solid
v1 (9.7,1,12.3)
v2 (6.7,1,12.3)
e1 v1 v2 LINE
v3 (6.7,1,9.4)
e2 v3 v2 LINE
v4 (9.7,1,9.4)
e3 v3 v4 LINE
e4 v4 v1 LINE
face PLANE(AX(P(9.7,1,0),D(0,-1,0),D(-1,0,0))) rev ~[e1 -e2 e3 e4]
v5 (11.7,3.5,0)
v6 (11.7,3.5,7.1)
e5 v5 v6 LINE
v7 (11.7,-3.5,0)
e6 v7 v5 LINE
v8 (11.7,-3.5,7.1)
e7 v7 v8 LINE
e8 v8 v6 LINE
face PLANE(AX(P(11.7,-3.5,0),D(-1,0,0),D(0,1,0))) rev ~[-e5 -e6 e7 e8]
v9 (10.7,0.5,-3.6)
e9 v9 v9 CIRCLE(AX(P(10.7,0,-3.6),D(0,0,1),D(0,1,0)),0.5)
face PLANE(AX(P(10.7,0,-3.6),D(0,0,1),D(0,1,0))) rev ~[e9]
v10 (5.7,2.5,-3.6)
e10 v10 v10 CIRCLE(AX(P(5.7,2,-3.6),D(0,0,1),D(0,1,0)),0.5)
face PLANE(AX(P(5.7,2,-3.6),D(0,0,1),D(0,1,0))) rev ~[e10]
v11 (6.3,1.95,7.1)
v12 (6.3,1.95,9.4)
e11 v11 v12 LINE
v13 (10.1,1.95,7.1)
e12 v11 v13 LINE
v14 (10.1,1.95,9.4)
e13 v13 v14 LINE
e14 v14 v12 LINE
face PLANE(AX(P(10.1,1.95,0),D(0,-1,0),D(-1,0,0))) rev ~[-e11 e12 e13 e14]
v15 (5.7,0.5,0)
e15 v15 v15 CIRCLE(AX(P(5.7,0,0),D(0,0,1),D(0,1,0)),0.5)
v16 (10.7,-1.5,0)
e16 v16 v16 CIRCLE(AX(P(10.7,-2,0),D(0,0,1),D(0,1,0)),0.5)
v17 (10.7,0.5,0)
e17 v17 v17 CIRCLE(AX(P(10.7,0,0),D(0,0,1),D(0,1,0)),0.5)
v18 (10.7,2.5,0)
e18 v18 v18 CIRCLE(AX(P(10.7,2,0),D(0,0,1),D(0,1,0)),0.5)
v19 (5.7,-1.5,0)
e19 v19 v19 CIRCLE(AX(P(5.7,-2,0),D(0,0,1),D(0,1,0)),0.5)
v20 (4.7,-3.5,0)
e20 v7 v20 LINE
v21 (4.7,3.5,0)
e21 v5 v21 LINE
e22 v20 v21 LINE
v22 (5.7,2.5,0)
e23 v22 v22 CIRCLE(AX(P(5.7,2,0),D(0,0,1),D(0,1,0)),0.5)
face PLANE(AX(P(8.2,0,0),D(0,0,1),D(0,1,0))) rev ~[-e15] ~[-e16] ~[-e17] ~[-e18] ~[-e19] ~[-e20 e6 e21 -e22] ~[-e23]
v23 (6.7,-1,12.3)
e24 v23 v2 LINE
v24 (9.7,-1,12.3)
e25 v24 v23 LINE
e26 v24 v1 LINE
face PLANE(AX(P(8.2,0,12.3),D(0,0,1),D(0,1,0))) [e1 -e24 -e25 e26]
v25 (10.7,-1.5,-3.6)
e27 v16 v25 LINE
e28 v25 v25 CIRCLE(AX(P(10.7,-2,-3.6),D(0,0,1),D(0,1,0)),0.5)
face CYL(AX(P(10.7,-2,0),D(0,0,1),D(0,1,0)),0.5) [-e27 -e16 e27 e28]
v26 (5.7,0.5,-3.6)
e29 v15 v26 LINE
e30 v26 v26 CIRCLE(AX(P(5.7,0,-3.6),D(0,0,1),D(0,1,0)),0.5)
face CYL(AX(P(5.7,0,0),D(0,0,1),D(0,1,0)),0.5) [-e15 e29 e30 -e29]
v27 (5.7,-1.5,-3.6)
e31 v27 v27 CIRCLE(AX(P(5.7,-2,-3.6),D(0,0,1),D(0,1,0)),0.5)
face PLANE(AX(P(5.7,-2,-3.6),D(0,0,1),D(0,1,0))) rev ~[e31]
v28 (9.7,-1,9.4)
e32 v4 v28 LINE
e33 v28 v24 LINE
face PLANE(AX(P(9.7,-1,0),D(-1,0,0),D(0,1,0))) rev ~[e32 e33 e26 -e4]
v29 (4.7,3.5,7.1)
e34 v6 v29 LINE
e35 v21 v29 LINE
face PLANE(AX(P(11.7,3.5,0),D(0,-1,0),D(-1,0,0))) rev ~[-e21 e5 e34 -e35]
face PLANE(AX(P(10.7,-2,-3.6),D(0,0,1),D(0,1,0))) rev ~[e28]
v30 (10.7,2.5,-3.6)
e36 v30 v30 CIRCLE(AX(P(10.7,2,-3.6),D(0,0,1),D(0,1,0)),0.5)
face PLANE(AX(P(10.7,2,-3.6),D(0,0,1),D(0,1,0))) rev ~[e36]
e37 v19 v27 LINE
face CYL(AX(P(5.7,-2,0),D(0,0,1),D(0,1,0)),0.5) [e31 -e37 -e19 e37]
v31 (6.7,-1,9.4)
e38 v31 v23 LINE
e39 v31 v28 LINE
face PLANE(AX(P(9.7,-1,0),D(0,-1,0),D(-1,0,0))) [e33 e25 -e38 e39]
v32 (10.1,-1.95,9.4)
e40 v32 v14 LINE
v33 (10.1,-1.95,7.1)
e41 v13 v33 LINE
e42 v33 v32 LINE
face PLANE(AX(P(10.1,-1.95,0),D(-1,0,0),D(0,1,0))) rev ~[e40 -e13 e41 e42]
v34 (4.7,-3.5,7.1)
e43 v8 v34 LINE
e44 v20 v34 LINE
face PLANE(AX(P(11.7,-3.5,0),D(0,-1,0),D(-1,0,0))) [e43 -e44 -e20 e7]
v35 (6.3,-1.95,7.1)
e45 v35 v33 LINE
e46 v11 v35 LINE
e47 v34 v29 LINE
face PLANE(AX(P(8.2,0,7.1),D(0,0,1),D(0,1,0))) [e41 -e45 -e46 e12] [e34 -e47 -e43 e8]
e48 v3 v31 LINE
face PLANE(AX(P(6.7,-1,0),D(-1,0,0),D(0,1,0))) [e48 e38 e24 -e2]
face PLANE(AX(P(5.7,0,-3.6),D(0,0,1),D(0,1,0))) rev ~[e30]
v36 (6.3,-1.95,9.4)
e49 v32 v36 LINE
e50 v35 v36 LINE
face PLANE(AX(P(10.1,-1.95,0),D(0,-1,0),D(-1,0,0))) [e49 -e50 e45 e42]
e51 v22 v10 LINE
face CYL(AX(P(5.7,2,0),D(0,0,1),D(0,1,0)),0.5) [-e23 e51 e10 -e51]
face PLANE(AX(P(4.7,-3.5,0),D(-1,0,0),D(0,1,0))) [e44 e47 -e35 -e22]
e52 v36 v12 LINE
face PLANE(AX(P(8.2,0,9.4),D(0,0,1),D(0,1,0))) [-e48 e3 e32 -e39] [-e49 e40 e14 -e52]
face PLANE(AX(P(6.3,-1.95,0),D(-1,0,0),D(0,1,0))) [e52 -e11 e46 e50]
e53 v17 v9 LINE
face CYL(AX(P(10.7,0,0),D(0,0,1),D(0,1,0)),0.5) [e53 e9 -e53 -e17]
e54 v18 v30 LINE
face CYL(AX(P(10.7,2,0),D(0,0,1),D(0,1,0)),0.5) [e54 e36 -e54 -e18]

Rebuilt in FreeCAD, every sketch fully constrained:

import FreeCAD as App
import Part
import Sketcher
Q = App.Units.Quantity


def add_polygon(sketch, points):
    """Adds a closed chain of lines whose ends are joined by coincident constraints."""
    first, n = sketch.GeometryCount, len(points)
    for a, b in zip(points, points[1:] + points[:1]):
        sketch.addGeometry(Part.LineSegment(App.Vector(*a, 0), App.Vector(*b, 0)), False)
    for i in range(n):
        sketch.addConstraint(Sketcher.Constraint("Coincident", first + i, 2, first + (i + 1) % n, 1))

doc = App.newDocument("Part")
params = doc.addObject("Spreadsheet::Sheet", "Params")
for row, (alias, value) in enumerate([
    ("sketch1_width", "7 mm"),
    ("pad1_length", "7.1 mm"),
    ("sketch2_diameter", "1 mm"),
    ("pad2_length", "3.6 mm"),
    ("sketch3_width", "3.9 mm"),
    ("sketch3_height", "3.8 mm"),
    ("pad3_length", "9.4 mm"),
    ("sketch4_width", "2 mm"),
    ("sketch4_height", "3 mm"),
    ("pad4_length", "12.3 mm"),
], start=1):
    params.set(f"A{row}", alias)
    params.set(f"B{row}", "=" + value)
    params.setAlias(f"B{row}", alias)

body = doc.addObject("PartDesign::Body", "Body")

sketch1 = body.newObject("Sketcher::SketchObject", "Sketch")
sketch1.AttachmentSupport = (doc.getObject("XY_Plane"), [""])
sketch1.MapMode = "FlatFace"
add_polygon(sketch1, [(-4, 4), (-4, -4), (4, -4), (4, 4)])
sketch1.addConstraint(Sketcher.Constraint("Vertical", 0))
sketch1.addConstraint(Sketcher.Constraint("Horizontal", 1))
sketch1.addConstraint(Sketcher.Constraint("Vertical", 2))
sketch1.addConstraint(Sketcher.Constraint("Horizontal", 3))
sketch1.addConstraint(Sketcher.Constraint("Symmetric", 0, 2, 2, 2, -1, 1))
sketch1.addConstraint(Sketcher.Constraint("Equal", 3, 0))
sketch1.addConstraint(Sketcher.Constraint("DistanceX", 1, 1, 1, 2, Q("7 mm")))
sketch1.setExpression("Constraints[10]", "Params.sketch1_width")
pad1 = body.newObject("PartDesign::Pad", "Pad")
pad1.Profile = sketch1
pad1.setExpression("Length", "Params.pad1_length")

sketch2 = body.newObject("Sketcher::SketchObject", "Sketch001")
sketch2.AttachmentSupport = (doc.getObject("XY_Plane"), [""])
sketch2.MapMode = "FlatFace"
sketch2.addGeometry(Part.Circle(App.Vector(0, 2.5, 0), App.Vector(0, 0, 1), 0.5), False)
sketch2.addGeometry(Part.Circle(App.Vector(0, -2.5, 0), App.Vector(0, 0, 1), 0.5), False)
sketch2.addGeometry(Part.Circle(App.Vector(2, 2.5, 0), App.Vector(0, 0, 1), 0.5), False)
sketch2.addGeometry(Part.Circle(App.Vector(-2, 2.5, 0), App.Vector(0, 0, 1), 0.5), False)
sketch2.addGeometry(Part.Circle(App.Vector(-2, -2.5, 0), App.Vector(0, 0, 1), 0.5), False)
sketch2.addGeometry(Part.Circle(App.Vector(2, -2.5, 0), App.Vector(0, 0, 1), 0.5), False)
sketch2.addConstraint(Sketcher.Constraint("Equal", 0, 1))
sketch2.addConstraint(Sketcher.Constraint("Equal", 1, 2))
sketch2.addConstraint(Sketcher.Constraint("Equal", 2, 3))
sketch2.addConstraint(Sketcher.Constraint("Equal", 3, 4))
sketch2.addConstraint(Sketcher.Constraint("Equal", 4, 5))
sketch2.addConstraint(Sketcher.Constraint("Symmetric", 0, 3, 1, 3, -1, 1))
sketch2.addConstraint(Sketcher.Constraint("Symmetric", 2, 3, 4, 3, -1, 1))
sketch2.addConstraint(Sketcher.Constraint("Symmetric", 3, 3, 5, 3, -1, 1))
sketch2.addConstraint(Sketcher.Constraint("Symmetric", 2, 3, 3, 3, -2))
sketch2.addConstraint(Sketcher.Constraint("PointOnObject", 0, 3, -2))
sketch2.addConstraint(Sketcher.Constraint("Horizontal", 0, 3, 2, 3))
sketch2.addConstraint(Sketcher.Constraint("Diameter", 0, Q("1 mm")))
sketch2.addConstraint(Sketcher.Constraint("DistanceX", -1, 1, 2, 3, Q("2 mm")))
sketch2.addConstraint(Sketcher.Constraint("DistanceY", 1, 3, 0, 3, Q("5 mm")))
sketch2.setExpression("Constraints[11]", "Params.sketch2_diameter")
pad2 = body.newObject("PartDesign::Pad", "Pad001")
pad2.Profile = sketch2
pad2.setExpression("Length", "Params.pad2_length")
pad2.Reversed = True

sketch3 = body.newObject("Sketcher::SketchObject", "Sketch002")
sketch3.AttachmentSupport = (doc.getObject("XY_Plane"), [""])
sketch3.MapMode = "FlatFace"
add_polygon(sketch3, [(-1.9, 1.9), (-1.9, -1.9), (1.9, -1.9), (1.9, 1.9)])
sketch3.addConstraint(Sketcher.Constraint("Vertical", 0))
sketch3.addConstraint(Sketcher.Constraint("Horizontal", 1))
sketch3.addConstraint(Sketcher.Constraint("Vertical", 2))
sketch3.addConstraint(Sketcher.Constraint("Horizontal", 3))
sketch3.addConstraint(Sketcher.Constraint("Symmetric", 0, 2, 2, 2, -1, 1))
sketch3.addConstraint(Sketcher.Constraint("DistanceX", 1, 1, 1, 2, Q("3.9 mm")))
sketch3.addConstraint(Sketcher.Constraint("DistanceY", 0, 2, 0, 1, Q("3.8 mm")))
sketch3.setExpression("Constraints[9]", "Params.sketch3_width")
sketch3.setExpression("Constraints[10]", "Params.sketch3_height")
pad3 = body.newObject("PartDesign::Pad", "Pad002")
pad3.Profile = sketch3
pad3.setExpression("Length", "Params.pad3_length")

sketch4 = body.newObject("Sketcher::SketchObject", "Sketch003")
sketch4.AttachmentSupport = (doc.getObject("XY_Plane"), [""])
sketch4.MapMode = "FlatFace"
add_polygon(sketch4, [(-1, 1.5), (-1, -1.5), (1, -1.5), (1, 1.5)])
sketch4.addConstraint(Sketcher.Constraint("Vertical", 0))
sketch4.addConstraint(Sketcher.Constraint("Horizontal", 1))
sketch4.addConstraint(Sketcher.Constraint("Vertical", 2))
sketch4.addConstraint(Sketcher.Constraint("Horizontal", 3))
sketch4.addConstraint(Sketcher.Constraint("Symmetric", 0, 2, 2, 2, -1, 1))
sketch4.addConstraint(Sketcher.Constraint("DistanceX", 1, 1, 1, 2, Q("2 mm")))
sketch4.addConstraint(Sketcher.Constraint("DistanceY", 0, 2, 0, 1, Q("3 mm")))
sketch4.setExpression("Constraints[9]", "Params.sketch4_width")
sketch4.setExpression("Constraints[10]", "Params.sketch4_height")
pad4 = body.newObject("PartDesign::Pad", "Pad003")
pad4.Profile = sketch4
pad4.setExpression("Length", "Params.pad4_length")
body2 = doc.addObject("PartDesign::Body", "Body001")
doc.recompute()

body.Placement = App.Placement(App.Vector(8.2, 0, 0), App.Rotation(App.Vector(0, 0, 1), 90))
boolean = body2.newObject("PartDesign::Boolean", "Boolean")
boolean.Type = "Fuse"
boolean.addObjects([body])

doc.recompute()
